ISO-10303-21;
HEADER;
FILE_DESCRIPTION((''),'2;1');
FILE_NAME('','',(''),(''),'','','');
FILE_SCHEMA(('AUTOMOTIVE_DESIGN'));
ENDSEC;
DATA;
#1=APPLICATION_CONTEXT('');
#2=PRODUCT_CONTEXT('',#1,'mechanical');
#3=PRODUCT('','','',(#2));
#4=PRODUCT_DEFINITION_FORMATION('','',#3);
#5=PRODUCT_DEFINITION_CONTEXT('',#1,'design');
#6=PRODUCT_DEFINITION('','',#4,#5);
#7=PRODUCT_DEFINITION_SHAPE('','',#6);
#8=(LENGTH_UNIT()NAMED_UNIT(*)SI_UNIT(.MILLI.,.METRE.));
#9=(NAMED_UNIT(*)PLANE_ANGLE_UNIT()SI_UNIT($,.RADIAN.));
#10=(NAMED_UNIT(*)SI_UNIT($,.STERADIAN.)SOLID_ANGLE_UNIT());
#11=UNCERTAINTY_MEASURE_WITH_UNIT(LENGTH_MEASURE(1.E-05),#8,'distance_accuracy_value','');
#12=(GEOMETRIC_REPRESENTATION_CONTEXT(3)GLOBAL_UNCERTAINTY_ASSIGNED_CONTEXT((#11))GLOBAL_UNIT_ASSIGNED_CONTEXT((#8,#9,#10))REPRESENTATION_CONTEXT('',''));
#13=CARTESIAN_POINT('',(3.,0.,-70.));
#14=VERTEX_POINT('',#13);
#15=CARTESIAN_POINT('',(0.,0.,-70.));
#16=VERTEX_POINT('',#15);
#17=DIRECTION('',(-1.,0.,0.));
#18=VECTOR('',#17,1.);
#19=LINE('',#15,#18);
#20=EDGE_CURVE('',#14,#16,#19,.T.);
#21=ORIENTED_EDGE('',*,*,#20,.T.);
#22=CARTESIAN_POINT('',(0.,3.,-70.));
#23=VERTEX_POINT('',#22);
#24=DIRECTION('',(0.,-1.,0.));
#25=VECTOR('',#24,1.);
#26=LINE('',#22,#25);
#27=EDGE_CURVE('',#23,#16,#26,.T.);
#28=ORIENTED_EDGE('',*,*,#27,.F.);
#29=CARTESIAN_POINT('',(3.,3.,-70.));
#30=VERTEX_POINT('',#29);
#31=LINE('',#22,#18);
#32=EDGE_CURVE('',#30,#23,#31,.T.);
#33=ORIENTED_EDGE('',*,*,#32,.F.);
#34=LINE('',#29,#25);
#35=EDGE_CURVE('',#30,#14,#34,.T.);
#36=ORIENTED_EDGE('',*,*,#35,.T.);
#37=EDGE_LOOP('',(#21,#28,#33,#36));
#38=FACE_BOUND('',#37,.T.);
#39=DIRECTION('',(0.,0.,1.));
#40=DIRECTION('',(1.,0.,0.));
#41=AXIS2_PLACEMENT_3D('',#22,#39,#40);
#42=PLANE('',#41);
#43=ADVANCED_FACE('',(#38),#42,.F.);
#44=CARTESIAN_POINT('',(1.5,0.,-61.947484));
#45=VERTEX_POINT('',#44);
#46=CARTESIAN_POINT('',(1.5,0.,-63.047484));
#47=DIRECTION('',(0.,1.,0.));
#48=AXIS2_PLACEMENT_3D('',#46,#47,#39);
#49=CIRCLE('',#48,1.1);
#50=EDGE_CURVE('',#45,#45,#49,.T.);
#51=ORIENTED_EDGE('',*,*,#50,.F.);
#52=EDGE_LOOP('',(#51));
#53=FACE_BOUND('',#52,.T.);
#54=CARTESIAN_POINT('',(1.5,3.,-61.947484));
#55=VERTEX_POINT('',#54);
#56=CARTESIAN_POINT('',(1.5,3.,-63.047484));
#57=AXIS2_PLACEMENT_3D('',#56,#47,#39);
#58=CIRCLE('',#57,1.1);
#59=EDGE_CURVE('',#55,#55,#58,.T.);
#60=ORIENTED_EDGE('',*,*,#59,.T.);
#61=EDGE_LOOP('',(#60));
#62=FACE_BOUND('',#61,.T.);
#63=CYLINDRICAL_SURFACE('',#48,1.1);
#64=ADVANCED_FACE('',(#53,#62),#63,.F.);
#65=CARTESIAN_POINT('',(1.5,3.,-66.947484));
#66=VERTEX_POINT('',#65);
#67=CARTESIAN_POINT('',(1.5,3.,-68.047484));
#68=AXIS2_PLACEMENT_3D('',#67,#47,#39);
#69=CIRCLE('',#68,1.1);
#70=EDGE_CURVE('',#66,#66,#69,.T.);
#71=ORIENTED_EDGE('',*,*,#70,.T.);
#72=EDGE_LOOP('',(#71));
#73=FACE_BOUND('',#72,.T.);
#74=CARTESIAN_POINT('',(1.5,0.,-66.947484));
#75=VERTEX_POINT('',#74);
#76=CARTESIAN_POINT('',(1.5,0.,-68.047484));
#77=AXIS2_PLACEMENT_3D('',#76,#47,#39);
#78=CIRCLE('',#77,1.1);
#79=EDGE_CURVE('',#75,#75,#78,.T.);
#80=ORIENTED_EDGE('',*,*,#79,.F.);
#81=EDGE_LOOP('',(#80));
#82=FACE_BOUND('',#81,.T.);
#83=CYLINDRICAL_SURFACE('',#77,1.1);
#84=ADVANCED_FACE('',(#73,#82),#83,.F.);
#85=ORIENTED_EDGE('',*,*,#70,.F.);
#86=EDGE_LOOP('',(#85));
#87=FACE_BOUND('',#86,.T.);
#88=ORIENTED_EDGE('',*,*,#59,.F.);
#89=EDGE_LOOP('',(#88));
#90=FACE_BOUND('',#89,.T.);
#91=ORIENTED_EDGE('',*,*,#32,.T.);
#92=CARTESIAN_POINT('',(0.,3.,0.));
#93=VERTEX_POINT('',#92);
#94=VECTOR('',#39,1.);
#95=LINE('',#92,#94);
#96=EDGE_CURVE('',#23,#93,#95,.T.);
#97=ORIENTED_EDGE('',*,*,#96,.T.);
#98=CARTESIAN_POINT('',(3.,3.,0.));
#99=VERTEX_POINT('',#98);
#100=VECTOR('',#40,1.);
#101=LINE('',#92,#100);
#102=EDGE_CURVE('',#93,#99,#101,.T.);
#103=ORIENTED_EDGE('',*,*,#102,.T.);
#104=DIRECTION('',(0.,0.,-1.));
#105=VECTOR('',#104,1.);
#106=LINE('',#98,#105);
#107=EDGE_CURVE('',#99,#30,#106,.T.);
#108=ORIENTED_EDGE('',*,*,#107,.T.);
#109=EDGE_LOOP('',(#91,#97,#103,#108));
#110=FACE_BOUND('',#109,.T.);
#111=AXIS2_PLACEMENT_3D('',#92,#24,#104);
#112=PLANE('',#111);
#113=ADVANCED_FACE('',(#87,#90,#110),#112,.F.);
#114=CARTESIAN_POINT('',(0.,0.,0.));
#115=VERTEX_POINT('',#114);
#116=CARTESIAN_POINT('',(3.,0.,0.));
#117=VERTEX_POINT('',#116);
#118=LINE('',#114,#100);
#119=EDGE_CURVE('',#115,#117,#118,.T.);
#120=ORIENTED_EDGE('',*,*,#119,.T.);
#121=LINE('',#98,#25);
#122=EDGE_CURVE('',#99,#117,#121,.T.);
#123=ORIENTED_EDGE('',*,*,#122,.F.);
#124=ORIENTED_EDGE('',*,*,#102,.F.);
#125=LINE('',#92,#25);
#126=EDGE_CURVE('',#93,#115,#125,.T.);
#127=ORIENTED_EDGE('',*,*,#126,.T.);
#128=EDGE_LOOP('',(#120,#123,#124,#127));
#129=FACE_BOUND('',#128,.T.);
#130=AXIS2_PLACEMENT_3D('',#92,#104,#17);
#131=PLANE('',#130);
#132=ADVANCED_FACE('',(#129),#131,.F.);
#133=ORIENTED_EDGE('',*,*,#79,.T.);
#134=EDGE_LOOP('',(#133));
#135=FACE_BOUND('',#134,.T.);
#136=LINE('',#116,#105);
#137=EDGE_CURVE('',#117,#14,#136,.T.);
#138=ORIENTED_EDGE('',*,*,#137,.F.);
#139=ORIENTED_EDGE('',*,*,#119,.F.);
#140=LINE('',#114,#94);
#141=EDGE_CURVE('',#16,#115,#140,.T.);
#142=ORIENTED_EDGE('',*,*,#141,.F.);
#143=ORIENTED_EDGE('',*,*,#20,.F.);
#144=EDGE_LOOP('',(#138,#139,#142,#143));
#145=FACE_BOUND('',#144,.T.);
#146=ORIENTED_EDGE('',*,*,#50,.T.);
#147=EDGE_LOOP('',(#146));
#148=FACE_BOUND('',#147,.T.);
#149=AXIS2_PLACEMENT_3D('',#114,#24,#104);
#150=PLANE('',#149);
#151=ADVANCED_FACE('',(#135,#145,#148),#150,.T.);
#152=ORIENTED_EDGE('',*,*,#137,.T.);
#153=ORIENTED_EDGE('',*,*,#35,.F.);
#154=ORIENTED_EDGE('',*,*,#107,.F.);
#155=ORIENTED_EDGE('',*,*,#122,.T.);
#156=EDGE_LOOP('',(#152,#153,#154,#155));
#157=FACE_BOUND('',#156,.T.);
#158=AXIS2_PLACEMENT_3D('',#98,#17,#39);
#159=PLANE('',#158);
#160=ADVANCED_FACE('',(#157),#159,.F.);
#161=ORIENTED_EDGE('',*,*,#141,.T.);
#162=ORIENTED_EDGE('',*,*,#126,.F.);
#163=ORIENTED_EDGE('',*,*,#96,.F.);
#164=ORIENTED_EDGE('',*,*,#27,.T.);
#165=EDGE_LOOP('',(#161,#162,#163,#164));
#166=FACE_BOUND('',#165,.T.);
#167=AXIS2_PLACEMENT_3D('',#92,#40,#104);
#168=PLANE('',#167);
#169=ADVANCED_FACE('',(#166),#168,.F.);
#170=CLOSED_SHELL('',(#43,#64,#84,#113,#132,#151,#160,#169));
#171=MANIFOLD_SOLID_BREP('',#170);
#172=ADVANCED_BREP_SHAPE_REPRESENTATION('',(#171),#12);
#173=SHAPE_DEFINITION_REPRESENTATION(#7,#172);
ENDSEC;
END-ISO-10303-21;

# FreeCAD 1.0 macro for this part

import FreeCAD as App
import Part
import Sketcher

V = App.Vector

doc = App.newDocument("Part")
body = doc.addObject("PartDesign::Body", "Body")

# Sketch on XZ plane
sketch1 = body.newObject("Sketcher::SketchObject", "Sketch")
sketch1.AttachmentSupport = (doc.getObject("XZ_Plane"), [""])
sketch1.MapMode = "FlatFace"
sketch1.addGeometry(Part.LineSegment(V(0, -70, 0), V(0, 0, 0)), False)
sketch1.addGeometry(Part.LineSegment(V(0, 0, 0), V(3, 0, 0)), False)
sketch1.addGeometry(Part.LineSegment(V(3, 0, 0), V(3, -70, 0)), False)
sketch1.addGeometry(Part.LineSegment(V(3, -70, 0), V(0, -70, 0)), False)
sketch1.addConstraint(Sketcher.Constraint("Coincident", 0, 2, 1, 1))
sketch1.addConstraint(Sketcher.Constraint("Coincident", 1, 2, 2, 1))
sketch1.addConstraint(Sketcher.Constraint("Coincident", 2, 2, 3, 1))
sketch1.addConstraint(Sketcher.Constraint("Coincident", 3, 2, 0, 1))
sketch1.addConstraint(Sketcher.Constraint("Vertical", 0))
sketch1.addConstraint(Sketcher.Constraint("Horizontal", 1))
sketch1.addConstraint(Sketcher.Constraint("Vertical", 2))
sketch1.addConstraint(Sketcher.Constraint("Horizontal", 3))
sketch1.addConstraint(Sketcher.Constraint("Coincident", 0, 2, -1, 1))
sketch1.addConstraint(Sketcher.Constraint("DistanceX", 1, 1, 1, 2, 3.0))
sketch1.addConstraint(Sketcher.Constraint("DistanceY", 0, 1, 0, 2, 70.0))
pad1 = body.newObject("PartDesign::Pad", "Pad")
pad1.Profile = sketch1
pad1.Length = 3
pad1.Reversed = True

# Sketch on XZ plane
sketch2 = body.newObject("Sketcher::SketchObject", "Sketch001")
sketch2.AttachmentSupport = (doc.getObject("XZ_Plane"), [""])
sketch2.MapMode = "FlatFace"
sketch2.AttachmentOffset = App.Placement(V(0, 0, -3), App.Rotation())
sketch2.addGeometry(Part.Circle(V(1.5, -68, 0), V(0, 0, 1), 1.1), False)
sketch2.addGeometry(Part.Circle(V(1.5, -63, 0), V(0, 0, 1), 1.1), False)
sketch2.addConstraint(Sketcher.Constraint("Equal", 0, 1))
sketch2.addConstraint(Sketcher.Constraint("Vertical", 0, 3, 1, 3))
sketch2.addConstraint(Sketcher.Constraint("Diameter", 0, 2.2))
sketch2.addConstraint(Sketcher.Constraint("DistanceY", 0, 3, 1, 3, 5.0))
sketch2.addConstraint(Sketcher.Constraint("DistanceX", -1, 1, 0, 3, 1.5))
sketch2.addConstraint(Sketcher.Constraint("DistanceY", 0, 3, -1, 1, 68.047484))
pocket1 = body.newObject("PartDesign::Pocket", "Pocket")
pocket1.Profile = sketch2
pocket1.Type = "ThroughAll"
pocket1.Reversed = True

doc.recompute()
